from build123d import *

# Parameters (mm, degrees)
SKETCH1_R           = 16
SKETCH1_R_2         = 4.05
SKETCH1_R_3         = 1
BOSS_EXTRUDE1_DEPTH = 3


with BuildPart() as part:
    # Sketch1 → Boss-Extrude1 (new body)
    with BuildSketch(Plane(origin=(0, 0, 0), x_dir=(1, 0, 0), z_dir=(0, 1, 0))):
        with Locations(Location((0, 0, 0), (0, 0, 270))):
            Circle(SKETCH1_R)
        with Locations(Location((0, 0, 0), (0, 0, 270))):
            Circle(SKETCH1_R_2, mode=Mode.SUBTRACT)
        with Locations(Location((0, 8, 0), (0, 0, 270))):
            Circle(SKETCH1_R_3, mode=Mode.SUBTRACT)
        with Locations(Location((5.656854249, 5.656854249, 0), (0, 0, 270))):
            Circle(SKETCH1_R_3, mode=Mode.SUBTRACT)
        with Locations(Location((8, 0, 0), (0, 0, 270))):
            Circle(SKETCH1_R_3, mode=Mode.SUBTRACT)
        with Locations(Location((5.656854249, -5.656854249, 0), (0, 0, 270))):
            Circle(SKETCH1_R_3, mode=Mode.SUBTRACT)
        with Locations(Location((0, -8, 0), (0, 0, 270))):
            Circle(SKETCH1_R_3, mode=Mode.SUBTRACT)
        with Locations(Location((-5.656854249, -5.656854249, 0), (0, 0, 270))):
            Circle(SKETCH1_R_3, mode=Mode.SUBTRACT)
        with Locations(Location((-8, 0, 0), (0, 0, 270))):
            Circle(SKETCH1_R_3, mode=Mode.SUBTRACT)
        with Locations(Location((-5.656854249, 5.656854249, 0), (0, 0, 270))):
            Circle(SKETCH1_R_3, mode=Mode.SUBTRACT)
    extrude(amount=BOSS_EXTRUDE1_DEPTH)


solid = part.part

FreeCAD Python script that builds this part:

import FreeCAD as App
import Part
import Sketcher
Q = App.Units.Quantity

doc = App.newDocument("Part")
body = doc.addObject("PartDesign::Body", "Body")

# Sketch on XZ plane
sketch1 = doc.addObject("Sketcher::SketchObject", "Sketch")
body.addObject(sketch1)
sketch1.AttachmentSupport = (doc.XZ_Plane, [""])
sketch1.MapMode = "FlatFace"
sketch1.addGeometry([
    Part.Circle(App.Vector(0, 0, 0), App.Vector(0, 0, 1), 16),  # 0
    Part.Circle(App.Vector(-5.7, -5.7, 0), App.Vector(0, 0, 1), 1),  # 1
    Part.Circle(App.Vector(0, -8, 0), App.Vector(0, 0, 1), 1),  # 2
    Part.Circle(App.Vector(-8, 0, 0), App.Vector(0, 0, 1), 1),  # 3
    Part.Circle(App.Vector(-5.7, 5.7, 0), App.Vector(0, 0, 1), 1),  # 4
    Part.Circle(App.Vector(5.7, -5.7, 0), App.Vector(0, 0, 1), 1),  # 5
    Part.Circle(App.Vector(0, 0, 0), App.Vector(0, 0, 1), 4),  # 6
    Part.Circle(App.Vector(0, 8, 0), App.Vector(0, 0, 1), 1),  # 7
    Part.Circle(App.Vector(8, 0, 0), App.Vector(0, 0, 1), 1),  # 8
    Part.Circle(App.Vector(5.7, 5.7, 0), App.Vector(0, 0, 1), 1),  # 9
], False)
sketch1.addConstraint([
    Sketcher.Constraint("Coincident", 0, 3, -1, 1),
    Sketcher.Constraint("Coincident", 6, 3, -1, 1),
    Sketcher.Constraint("Equal", 1, 2),
    Sketcher.Constraint("Equal", 2, 3),
    Sketcher.Constraint("Equal", 3, 4),
    Sketcher.Constraint("Equal", 4, 5),
    Sketcher.Constraint("Equal", 5, 7),
    Sketcher.Constraint("Equal", 7, 8),
    Sketcher.Constraint("Equal", 8, 9),
    Sketcher.Constraint("Symmetric", 4, 3, 5, 3, -1, 1),
    Sketcher.Constraint("Symmetric", 2, 3, 7, 3, -1, 1),
    Sketcher.Constraint("Symmetric", 3, 3, 8, 3, -1, 1),
    Sketcher.Constraint("Symmetric", 1, 3, 9, 3, -1, 1),
    Sketcher.Constraint("Symmetric", 1, 3, 5, 3, -2),
    Sketcher.Constraint("PointOnObject", 2, 3, -2),
    Sketcher.Constraint("PointOnObject", 3, 3, -1),
    Sketcher.Constraint("Diameter", 0, Q("32 mm")),
    Sketcher.Constraint("Diameter", 1, Q("2 mm")),
    Sketcher.Constraint("Diameter", 6, Q("8.1 mm")),
    Sketcher.Constraint("DistanceY", 2, 3, -1, 1, Q("8 mm")),
    Sketcher.Constraint("DistanceX", 3, 3, -1, 1, Q("8 mm")),
    Sketcher.Constraint("DistanceY", 1, 3, 4, 3, Q("11.313708 mm")),
    Sketcher.Constraint("DistanceX", 1, 3, 5, 3, Q("11.313708 mm")),
])
pad1 = doc.addObject("PartDesign::Pad", "Pad")
body.addObject(pad1)
pad1.Profile = sketch1
pad1.Length = 3
pad1.Reversed = True

doc.recompute()
